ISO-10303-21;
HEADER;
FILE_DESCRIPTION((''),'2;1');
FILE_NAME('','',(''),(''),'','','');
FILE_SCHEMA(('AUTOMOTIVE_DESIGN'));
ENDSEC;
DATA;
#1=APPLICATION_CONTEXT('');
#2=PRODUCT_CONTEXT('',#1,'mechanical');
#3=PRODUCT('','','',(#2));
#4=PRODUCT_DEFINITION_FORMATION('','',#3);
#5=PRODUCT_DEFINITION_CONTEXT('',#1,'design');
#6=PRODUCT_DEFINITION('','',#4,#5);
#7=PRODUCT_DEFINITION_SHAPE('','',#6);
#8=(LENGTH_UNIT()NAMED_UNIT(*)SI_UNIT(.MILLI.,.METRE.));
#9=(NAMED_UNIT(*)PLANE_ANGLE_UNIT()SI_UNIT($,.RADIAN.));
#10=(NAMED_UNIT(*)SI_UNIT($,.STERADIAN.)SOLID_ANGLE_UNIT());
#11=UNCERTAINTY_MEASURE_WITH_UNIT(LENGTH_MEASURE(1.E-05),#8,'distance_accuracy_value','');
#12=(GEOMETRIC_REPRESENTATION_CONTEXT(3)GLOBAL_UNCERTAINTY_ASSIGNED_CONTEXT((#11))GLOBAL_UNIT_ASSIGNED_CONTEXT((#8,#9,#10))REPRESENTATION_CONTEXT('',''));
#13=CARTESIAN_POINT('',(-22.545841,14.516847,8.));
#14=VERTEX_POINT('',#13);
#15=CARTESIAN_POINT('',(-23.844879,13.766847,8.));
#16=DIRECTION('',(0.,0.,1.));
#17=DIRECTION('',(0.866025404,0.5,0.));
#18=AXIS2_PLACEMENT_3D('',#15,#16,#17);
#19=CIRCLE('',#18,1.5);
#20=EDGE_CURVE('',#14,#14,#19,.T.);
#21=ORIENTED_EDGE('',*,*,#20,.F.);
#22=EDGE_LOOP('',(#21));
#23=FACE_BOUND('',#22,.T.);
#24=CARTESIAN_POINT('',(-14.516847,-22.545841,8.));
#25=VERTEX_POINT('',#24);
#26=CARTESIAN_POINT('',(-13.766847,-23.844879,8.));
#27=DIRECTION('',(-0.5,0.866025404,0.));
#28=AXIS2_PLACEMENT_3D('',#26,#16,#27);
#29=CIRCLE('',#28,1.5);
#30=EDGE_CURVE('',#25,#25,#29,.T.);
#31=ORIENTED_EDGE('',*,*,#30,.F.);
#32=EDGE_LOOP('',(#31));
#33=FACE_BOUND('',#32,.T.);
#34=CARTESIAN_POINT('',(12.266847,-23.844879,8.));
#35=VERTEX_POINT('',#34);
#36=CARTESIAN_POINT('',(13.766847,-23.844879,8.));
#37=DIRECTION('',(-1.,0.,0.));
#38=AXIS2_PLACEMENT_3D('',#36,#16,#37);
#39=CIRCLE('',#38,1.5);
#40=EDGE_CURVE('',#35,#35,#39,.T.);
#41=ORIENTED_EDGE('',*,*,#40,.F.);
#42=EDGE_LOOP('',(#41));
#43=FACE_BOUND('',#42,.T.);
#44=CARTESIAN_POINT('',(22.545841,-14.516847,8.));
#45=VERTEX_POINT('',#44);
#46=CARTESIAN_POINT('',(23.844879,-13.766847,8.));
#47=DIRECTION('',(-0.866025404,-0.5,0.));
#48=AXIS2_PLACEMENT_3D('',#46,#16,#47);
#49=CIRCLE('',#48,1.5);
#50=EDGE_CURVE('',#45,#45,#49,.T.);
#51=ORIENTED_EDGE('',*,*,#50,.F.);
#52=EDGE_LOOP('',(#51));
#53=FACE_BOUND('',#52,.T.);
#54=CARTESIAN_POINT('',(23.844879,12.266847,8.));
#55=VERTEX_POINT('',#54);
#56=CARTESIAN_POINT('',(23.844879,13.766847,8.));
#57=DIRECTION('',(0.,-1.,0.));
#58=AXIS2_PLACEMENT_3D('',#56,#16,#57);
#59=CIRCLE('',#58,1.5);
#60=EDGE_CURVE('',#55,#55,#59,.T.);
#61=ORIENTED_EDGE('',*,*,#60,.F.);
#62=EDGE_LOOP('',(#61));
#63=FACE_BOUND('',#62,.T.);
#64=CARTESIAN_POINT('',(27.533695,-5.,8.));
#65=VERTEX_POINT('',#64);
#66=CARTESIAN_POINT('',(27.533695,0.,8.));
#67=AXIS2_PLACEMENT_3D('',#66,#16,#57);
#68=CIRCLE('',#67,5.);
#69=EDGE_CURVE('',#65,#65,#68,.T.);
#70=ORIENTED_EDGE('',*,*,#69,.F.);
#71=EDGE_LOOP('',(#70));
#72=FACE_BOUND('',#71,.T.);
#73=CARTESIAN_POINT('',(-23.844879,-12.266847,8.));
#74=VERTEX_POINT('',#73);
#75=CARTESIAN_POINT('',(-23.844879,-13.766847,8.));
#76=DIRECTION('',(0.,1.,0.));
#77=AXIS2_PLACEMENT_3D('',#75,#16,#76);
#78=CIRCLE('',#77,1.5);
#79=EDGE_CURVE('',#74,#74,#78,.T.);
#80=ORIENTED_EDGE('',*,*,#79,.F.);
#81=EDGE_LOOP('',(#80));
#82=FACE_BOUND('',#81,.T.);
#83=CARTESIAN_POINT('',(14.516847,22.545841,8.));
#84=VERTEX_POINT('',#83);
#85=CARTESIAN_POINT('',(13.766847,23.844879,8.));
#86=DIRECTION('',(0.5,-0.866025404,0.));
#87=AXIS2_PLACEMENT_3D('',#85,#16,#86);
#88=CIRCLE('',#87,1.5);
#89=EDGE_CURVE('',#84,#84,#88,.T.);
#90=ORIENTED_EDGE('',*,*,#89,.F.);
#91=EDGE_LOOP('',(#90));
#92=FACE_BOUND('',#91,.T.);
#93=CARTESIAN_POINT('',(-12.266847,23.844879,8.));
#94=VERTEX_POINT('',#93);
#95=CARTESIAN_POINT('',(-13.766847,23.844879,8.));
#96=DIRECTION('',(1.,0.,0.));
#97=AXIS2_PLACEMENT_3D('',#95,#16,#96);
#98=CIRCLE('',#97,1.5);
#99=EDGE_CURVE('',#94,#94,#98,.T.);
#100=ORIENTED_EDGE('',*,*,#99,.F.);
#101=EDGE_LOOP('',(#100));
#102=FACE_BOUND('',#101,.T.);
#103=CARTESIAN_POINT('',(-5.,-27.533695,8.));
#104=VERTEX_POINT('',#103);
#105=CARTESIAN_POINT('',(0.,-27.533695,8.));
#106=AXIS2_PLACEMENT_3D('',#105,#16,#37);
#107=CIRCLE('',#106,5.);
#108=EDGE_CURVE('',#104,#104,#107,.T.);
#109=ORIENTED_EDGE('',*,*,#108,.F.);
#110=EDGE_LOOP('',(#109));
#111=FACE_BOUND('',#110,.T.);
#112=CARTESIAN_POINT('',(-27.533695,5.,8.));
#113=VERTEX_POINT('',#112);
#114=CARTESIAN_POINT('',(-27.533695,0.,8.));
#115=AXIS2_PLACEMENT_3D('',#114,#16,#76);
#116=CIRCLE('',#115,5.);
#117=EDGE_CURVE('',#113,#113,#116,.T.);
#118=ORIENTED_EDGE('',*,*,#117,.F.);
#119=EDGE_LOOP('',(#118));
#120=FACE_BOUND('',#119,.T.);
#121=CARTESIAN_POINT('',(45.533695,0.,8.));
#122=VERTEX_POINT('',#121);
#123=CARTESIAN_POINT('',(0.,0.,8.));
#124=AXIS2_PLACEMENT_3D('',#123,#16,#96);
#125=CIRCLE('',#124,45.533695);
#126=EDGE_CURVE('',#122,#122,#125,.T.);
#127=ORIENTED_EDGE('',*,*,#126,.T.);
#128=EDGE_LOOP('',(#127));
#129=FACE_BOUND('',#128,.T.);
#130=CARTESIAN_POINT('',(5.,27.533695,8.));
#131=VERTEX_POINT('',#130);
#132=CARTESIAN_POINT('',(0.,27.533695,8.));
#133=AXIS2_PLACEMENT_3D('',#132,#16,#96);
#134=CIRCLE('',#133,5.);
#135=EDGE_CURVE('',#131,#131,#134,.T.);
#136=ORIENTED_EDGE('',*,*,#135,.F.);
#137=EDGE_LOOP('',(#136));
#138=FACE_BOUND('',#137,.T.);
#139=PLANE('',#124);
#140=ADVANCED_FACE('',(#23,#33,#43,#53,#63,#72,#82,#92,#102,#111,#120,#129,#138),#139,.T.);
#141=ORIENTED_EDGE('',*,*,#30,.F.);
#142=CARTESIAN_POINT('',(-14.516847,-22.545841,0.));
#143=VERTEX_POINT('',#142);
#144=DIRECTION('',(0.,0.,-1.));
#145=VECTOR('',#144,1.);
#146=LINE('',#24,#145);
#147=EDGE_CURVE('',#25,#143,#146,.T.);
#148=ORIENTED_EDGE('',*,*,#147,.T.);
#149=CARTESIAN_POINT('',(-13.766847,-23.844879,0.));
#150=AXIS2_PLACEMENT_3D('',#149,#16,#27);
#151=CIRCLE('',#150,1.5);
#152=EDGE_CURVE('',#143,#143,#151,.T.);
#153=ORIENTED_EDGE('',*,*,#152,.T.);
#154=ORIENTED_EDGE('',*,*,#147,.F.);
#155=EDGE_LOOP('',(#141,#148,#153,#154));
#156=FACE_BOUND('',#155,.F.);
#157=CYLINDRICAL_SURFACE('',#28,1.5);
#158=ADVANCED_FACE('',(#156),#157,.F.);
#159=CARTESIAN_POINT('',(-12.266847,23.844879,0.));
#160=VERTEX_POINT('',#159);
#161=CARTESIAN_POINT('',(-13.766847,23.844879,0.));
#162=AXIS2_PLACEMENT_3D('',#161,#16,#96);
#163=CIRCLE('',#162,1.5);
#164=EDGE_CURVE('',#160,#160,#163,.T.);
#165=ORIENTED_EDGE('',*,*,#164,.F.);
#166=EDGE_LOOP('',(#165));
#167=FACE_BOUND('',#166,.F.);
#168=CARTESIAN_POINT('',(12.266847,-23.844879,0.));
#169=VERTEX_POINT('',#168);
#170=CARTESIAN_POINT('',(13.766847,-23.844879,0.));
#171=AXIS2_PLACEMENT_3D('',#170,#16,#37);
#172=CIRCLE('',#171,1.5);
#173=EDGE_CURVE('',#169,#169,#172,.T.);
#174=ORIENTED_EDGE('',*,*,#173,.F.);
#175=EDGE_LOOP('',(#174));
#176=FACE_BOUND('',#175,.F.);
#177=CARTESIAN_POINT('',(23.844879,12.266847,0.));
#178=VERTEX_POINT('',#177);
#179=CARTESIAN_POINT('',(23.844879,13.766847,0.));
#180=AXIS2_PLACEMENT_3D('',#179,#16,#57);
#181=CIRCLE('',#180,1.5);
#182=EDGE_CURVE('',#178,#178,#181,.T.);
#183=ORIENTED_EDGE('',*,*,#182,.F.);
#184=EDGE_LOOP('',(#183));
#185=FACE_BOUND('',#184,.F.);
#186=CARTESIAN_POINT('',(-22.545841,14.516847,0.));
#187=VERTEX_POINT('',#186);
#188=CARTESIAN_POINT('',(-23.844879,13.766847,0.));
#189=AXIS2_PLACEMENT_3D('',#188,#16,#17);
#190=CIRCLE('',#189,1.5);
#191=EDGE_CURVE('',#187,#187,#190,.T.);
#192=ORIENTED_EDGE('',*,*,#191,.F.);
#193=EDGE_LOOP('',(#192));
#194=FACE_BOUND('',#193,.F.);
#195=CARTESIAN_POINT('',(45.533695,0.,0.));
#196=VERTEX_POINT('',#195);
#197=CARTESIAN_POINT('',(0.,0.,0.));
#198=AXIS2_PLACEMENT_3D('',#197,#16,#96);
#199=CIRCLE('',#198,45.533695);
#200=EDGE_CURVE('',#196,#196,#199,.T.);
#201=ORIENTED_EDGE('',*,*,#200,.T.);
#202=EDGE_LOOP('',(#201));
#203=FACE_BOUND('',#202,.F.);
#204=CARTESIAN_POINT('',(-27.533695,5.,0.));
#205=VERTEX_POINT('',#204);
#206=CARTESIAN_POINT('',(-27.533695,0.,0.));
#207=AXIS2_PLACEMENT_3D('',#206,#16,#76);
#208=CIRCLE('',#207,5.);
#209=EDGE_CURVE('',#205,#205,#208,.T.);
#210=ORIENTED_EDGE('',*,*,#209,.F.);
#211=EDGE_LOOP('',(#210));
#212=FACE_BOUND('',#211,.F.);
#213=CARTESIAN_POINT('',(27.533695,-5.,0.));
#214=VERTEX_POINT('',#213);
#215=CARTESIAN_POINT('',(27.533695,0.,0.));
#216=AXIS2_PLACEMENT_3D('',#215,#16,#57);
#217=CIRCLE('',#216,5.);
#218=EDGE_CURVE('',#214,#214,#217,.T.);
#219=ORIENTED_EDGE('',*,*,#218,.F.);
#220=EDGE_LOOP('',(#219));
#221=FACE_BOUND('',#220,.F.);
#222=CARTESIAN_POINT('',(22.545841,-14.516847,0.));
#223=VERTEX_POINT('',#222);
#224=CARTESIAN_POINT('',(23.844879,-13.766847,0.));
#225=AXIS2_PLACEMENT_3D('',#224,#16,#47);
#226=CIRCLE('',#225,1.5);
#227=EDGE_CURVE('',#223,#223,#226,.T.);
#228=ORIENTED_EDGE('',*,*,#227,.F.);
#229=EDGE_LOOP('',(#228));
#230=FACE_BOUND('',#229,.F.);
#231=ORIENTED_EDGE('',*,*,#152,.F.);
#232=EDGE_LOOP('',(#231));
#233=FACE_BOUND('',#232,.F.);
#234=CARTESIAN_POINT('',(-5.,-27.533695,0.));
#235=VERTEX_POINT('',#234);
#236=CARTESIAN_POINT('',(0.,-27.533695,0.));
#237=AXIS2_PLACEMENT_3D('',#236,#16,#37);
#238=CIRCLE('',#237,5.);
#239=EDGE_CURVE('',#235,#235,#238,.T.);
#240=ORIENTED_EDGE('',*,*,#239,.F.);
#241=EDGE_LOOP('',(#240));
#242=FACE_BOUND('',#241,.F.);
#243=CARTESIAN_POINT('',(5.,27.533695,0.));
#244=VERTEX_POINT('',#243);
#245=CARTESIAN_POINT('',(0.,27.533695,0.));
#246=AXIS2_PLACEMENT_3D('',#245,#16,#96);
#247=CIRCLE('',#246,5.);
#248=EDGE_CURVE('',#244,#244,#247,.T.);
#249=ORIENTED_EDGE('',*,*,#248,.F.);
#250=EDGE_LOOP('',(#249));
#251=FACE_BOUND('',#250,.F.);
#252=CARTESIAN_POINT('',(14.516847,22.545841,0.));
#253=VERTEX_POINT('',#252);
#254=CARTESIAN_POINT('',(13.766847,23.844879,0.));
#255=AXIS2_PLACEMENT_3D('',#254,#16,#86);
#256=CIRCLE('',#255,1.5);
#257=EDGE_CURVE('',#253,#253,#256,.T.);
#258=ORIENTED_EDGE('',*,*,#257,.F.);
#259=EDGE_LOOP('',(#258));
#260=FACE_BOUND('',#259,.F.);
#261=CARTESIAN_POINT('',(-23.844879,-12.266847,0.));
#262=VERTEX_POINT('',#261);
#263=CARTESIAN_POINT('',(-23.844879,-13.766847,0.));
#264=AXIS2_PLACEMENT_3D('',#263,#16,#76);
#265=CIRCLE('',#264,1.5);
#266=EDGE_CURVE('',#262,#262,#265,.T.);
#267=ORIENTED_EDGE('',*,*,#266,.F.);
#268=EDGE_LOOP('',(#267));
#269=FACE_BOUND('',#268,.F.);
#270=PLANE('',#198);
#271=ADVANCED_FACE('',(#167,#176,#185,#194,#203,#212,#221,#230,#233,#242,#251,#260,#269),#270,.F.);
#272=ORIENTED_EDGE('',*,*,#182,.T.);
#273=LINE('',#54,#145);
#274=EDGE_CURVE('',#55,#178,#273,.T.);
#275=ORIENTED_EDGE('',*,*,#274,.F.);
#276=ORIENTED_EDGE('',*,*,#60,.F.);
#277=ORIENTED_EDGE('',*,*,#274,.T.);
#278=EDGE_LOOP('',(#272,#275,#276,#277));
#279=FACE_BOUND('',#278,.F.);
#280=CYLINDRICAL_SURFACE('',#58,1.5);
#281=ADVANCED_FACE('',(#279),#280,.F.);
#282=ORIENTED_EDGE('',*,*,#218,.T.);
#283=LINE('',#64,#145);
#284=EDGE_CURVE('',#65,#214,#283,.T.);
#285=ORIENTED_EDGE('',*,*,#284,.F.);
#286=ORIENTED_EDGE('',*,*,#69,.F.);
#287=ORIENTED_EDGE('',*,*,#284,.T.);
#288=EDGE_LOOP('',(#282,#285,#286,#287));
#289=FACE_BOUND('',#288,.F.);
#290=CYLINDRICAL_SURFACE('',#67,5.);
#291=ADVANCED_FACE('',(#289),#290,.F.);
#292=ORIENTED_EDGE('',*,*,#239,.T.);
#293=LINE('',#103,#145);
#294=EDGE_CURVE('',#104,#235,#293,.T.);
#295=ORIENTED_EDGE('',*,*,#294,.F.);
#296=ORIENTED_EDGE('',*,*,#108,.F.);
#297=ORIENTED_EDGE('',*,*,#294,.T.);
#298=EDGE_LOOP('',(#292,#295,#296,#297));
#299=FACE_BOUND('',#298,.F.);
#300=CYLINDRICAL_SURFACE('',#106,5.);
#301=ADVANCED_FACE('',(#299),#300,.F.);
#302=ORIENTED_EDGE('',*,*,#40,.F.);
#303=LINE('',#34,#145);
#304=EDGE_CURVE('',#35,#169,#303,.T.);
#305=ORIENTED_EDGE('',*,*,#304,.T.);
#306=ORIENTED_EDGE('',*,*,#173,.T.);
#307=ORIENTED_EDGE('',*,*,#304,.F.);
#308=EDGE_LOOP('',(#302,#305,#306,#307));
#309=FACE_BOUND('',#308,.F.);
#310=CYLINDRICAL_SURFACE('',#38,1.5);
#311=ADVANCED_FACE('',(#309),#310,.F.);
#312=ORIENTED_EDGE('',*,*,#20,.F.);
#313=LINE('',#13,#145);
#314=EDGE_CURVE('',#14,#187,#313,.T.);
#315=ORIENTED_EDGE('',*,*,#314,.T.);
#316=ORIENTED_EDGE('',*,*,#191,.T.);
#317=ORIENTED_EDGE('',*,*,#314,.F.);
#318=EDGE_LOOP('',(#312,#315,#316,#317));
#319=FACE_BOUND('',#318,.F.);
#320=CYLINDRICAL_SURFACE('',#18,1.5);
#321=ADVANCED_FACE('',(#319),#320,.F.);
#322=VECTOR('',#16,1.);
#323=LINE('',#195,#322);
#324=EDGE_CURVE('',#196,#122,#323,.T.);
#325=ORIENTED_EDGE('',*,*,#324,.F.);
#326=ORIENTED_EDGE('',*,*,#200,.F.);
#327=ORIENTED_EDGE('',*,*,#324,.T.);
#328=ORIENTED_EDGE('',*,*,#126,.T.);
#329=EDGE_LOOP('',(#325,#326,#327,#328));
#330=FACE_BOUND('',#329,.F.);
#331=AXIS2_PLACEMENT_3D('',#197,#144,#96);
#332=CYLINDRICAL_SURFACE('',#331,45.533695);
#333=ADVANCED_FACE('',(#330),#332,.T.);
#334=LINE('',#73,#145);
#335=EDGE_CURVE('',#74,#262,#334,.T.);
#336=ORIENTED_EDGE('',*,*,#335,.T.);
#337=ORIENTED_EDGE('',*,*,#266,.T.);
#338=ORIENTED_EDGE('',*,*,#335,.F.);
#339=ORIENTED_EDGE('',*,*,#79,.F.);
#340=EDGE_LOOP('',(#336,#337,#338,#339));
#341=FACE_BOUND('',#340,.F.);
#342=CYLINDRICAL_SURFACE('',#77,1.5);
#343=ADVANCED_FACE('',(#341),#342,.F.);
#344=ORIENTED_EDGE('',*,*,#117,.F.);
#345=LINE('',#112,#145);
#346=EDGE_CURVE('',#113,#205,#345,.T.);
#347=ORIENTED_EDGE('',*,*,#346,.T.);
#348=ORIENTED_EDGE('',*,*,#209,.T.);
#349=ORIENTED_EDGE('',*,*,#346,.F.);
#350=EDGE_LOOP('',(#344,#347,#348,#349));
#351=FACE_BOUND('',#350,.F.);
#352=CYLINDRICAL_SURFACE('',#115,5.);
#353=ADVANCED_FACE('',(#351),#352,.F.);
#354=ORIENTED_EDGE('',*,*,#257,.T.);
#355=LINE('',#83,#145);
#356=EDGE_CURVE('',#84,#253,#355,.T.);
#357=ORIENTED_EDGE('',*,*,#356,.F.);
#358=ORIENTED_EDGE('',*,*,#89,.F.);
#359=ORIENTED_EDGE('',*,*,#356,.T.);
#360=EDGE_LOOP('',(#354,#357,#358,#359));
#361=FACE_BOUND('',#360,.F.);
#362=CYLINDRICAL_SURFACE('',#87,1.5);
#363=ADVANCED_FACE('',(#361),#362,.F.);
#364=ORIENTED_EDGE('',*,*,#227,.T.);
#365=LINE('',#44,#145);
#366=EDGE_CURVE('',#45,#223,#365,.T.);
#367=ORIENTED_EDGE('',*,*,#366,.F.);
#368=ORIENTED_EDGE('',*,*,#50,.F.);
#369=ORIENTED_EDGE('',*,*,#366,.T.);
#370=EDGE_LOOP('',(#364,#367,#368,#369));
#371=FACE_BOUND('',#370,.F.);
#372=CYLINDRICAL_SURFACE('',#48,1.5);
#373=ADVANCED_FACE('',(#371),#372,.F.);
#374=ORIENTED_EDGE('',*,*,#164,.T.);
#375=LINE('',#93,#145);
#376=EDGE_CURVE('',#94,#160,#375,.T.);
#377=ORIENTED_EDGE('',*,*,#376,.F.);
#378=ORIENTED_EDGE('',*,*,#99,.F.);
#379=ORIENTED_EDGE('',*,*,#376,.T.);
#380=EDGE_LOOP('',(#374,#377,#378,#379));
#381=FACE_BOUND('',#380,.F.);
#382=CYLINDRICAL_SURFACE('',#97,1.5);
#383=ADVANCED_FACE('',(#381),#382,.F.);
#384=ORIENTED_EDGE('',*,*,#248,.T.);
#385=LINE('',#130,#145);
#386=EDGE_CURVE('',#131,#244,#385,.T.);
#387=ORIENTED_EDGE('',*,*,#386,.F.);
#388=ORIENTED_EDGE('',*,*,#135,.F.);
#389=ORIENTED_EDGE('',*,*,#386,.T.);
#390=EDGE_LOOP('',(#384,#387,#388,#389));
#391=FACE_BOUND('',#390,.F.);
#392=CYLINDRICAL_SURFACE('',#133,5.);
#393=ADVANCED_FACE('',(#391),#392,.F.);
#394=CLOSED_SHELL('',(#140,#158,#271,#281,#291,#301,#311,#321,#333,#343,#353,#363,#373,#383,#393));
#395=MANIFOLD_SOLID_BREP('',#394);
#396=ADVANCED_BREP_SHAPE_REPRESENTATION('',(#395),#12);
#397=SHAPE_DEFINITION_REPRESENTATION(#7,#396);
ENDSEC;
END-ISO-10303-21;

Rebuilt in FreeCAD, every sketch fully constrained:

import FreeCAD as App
import Part
import Sketcher

doc = App.newDocument("Part")
body = doc.addObject("PartDesign::Body", "Body")

sketch1 = body.newObject("Sketcher::SketchObject", "Sketch")
sketch1.AttachmentSupport = (doc.getObject("XY_Plane"), [""])
sketch1.MapMode = "FlatFace"
sketch1.addGeometry(Part.Circle(App.Vector(0, 0, 0), App.Vector(0, 0, 1), 46), False)
sketch1.addConstraint([
    Sketcher.Constraint("Coincident", 0, 3, -1, 1),
    Sketcher.Constraint("Diameter", 0, 91.06739),
])
pad1 = body.newObject("PartDesign::Pad", "Pad")
pad1.Profile = sketch1
pad1.Length = 8

sketch2 = body.newObject("Sketcher::SketchObject", "Sketch001")
sketch2.AttachmentSupport = (doc.getObject("XY_Plane"), [""])
sketch2.MapMode = "FlatFace"
sketch2.AttachmentOffset = App.Placement(App.Vector(0, 0, 8), App.Rotation())
sketch2.addGeometry(Part.Circle(App.Vector(0, 28, 0), App.Vector(0, 0, 1), 5), False)
sketch2.addConstraint([
    Sketcher.Constraint("PointOnObject", 0, 3, -2),
    Sketcher.Constraint("Diameter", 0, 10.0),
    Sketcher.Constraint("DistanceY", -1, 1, 0, 3, 27.533695),
])
pocket1 = body.newObject("PartDesign::Pocket", "Pocket")
pocket1.Profile = sketch2
pocket1.Type = "ThroughAll"
doc.recompute()

polarpattern = body.newObject("PartDesign::PolarPattern", "PolarPattern")
polarpattern.Originals = [pocket1]
polarpattern.Axis = (doc.getObject("Z_Axis"), [""])
polarpattern.Angle = 360
polarpattern.Occurrences = 4
body.Tip = polarpattern

sketch3 = body.newObject("Sketcher::SketchObject", "Sketch002")
sketch3.AttachmentSupport = (doc.getObject("XY_Plane"), [""])
sketch3.MapMode = "FlatFace"
sketch3.AttachmentOffset = App.Placement(App.Vector(0, 0, 8), App.Rotation())
sketch3.addGeometry(Part.Circle(App.Vector(-13.8, 23.8, 0), App.Vector(0, 0, 1), 1.5), False)
sketch3.addConstraint([
    Sketcher.Constraint("Diameter", 0, 3.0),
    Sketcher.Constraint("DistanceY", -1, 1, 0, 3, 23.844879),
    Sketcher.Constraint("DistanceX", 0, 3, -1, 1, 13.766847),
])
pocket2 = body.newObject("PartDesign::Pocket", "Pocket001")
pocket2.Profile = sketch3
pocket2.Type = "ThroughAll"
doc.recompute()

polarpattern2 = body.newObject("PartDesign::PolarPattern", "PolarPattern001")
polarpattern2.Originals = [pocket2]
polarpattern2.Axis = (doc.getObject("Z_Axis"), [""])
polarpattern2.Angle = 360
polarpattern2.Occurrences = 12
body.Tip = polarpattern2

doc.recompute()
